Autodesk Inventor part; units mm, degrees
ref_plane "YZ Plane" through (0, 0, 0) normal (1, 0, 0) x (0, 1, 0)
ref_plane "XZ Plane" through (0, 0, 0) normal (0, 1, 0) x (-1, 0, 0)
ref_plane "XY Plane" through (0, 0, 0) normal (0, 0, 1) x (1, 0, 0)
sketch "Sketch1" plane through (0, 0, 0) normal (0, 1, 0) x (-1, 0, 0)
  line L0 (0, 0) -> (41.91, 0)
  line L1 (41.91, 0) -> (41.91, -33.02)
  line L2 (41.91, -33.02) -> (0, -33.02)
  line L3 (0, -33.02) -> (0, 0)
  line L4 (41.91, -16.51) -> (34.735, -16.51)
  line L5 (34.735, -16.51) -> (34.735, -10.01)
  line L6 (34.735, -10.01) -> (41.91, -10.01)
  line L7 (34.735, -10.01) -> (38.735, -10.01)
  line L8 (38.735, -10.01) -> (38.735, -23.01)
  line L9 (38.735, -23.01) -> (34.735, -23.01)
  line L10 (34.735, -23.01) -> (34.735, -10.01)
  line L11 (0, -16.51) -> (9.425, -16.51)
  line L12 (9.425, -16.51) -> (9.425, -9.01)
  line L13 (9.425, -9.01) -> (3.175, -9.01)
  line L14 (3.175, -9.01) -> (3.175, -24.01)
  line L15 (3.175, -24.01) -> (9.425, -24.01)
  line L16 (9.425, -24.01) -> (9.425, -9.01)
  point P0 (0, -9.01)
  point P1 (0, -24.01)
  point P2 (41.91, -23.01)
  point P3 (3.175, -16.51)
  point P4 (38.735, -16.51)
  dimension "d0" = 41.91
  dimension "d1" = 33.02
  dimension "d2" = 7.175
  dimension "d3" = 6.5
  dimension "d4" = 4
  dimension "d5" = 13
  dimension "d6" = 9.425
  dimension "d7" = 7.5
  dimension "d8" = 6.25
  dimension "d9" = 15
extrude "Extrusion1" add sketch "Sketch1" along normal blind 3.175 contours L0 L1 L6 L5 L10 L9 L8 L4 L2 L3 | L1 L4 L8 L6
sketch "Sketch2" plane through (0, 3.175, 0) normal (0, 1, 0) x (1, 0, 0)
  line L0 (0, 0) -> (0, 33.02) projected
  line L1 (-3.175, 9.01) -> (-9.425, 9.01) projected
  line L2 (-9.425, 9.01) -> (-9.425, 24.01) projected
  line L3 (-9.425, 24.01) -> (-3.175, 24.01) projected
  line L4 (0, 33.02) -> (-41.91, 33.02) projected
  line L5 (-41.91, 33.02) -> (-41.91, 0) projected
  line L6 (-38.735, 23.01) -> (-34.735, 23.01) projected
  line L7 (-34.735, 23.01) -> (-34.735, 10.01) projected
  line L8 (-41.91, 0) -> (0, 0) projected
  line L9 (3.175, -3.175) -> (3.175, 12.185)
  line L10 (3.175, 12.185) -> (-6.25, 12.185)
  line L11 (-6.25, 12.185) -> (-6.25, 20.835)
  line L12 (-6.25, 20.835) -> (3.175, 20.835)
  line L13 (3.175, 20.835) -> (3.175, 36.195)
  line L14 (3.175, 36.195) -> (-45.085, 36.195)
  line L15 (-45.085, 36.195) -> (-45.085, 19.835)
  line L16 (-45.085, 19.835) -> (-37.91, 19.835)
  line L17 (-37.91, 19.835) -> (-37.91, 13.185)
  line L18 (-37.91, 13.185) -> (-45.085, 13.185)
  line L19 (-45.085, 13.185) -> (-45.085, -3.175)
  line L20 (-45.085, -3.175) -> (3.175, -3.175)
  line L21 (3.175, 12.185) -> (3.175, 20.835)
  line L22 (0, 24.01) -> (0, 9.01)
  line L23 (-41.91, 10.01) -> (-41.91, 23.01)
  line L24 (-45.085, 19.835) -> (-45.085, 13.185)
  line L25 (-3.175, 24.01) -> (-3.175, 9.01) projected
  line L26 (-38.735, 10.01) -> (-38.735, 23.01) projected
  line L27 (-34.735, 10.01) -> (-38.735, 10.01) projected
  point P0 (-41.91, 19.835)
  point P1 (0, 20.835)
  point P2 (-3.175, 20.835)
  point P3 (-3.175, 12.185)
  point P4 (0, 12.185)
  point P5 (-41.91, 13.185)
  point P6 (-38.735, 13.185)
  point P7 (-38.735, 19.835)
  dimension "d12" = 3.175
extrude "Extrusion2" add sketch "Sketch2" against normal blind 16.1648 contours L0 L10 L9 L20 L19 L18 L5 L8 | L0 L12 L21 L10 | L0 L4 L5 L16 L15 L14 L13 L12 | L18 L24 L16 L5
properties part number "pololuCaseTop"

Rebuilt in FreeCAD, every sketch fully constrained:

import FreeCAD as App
import Part
import Sketcher

V = App.Vector
Q = App.Units.Quantity

doc = App.newDocument("Part")
body = doc.addObject("PartDesign::Body", "Body")

# Sketch on XZ plane
sketch1 = doc.addObject("Sketcher::SketchObject", "Sketch")
body.addObject(sketch1)
sketch1.AttachmentSupport = (doc.XZ_Plane, [""])
sketch1.MapMode = "FlatFace"
sketch1.addGeometry(Part.LineSegment(V(-41.9, 0, 0), V(0, 0, 0)), False)
sketch1.addGeometry(Part.LineSegment(V(0, 0, 0), V(0, -16.5, 0)), False)
sketch1.addGeometry(Part.LineSegment(V(0, -16.5, 0), V(0, -33, 0)), False)
sketch1.addGeometry(Part.LineSegment(V(0, -33, 0), V(-41.9, -33, 0)), False)
sketch1.addGeometry(Part.LineSegment(V(-41.9, -33, 0), V(-41.9, 0, 0)), False)
sketch1.addGeometry(Part.LineSegment(V(-34.7, -10, 0), V(-38.7, -10, 0)), False)
sketch1.addGeometry(Part.LineSegment(V(-38.7, -10, 0), V(-38.7, -23, 0)), False)
sketch1.addGeometry(Part.LineSegment(V(-38.7, -23, 0), V(-34.7, -23, 0)), False)
sketch1.addGeometry(Part.LineSegment(V(-34.7, -23, 0), V(-34.7, -10, 0)), False)
sketch1.addGeometry(Part.LineSegment(V(-3.2, -24, 0), V(-3.2, -16.5, 0)), False)
sketch1.addGeometry(Part.LineSegment(V(-3.2, -16.5, 0), V(-3.2, -9, 0)), False)
sketch1.addGeometry(Part.LineSegment(V(-3.2, -9, 0), V(-9.4, -9, 0)), False)
sketch1.addGeometry(Part.LineSegment(V(-9.4, -9, 0), V(-9.4, -24, 0)), False)
sketch1.addGeometry(Part.LineSegment(V(-9.4, -24, 0), V(-3.2, -24, 0)), False)
sketch1.addConstraint(Sketcher.Constraint("Coincident", 0, 2, 1, 1))
sketch1.addConstraint(Sketcher.Constraint("Coincident", 1, 2, 2, 1))
sketch1.addConstraint(Sketcher.Constraint("Coincident", 2, 2, 3, 1))
sketch1.addConstraint(Sketcher.Constraint("Coincident", 3, 2, 4, 1))
sketch1.addConstraint(Sketcher.Constraint("Coincident", 4, 2, 0, 1))
sketch1.addConstraint(Sketcher.Constraint("Coincident", 5, 2, 6, 1))
sketch1.addConstraint(Sketcher.Constraint("Coincident", 6, 2, 7, 1))
sketch1.addConstraint(Sketcher.Constraint("Coincident", 7, 2, 8, 1))
sketch1.addConstraint(Sketcher.Constraint("Coincident", 8, 2, 5, 1))
sketch1.addConstraint(Sketcher.Constraint("Coincident", 9, 2, 10, 1))
sketch1.addConstraint(Sketcher.Constraint("Coincident", 10, 2, 11, 1))
sketch1.addConstraint(Sketcher.Constraint("Coincident", 11, 2, 12, 1))
sketch1.addConstraint(Sketcher.Constraint("Coincident", 12, 2, 13, 1))
sketch1.addConstraint(Sketcher.Constraint("Coincident", 13, 2, 9, 1))
sketch1.addConstraint(Sketcher.Constraint("Horizontal", 0))
sketch1.addConstraint(Sketcher.Constraint("Vertical", 1))
sketch1.addConstraint(Sketcher.Constraint("Vertical", 2))
sketch1.addConstraint(Sketcher.Constraint("Horizontal", 3))
sketch1.addConstraint(Sketcher.Constraint("Vertical", 4))
sketch1.addConstraint(Sketcher.Constraint("Horizontal", 5))
sketch1.addConstraint(Sketcher.Constraint("Vertical", 6))
sketch1.addConstraint(Sketcher.Constraint("Horizontal", 7))
sketch1.addConstraint(Sketcher.Constraint("Vertical", 8))
sketch1.addConstraint(Sketcher.Constraint("Vertical", 9))
sketch1.addConstraint(Sketcher.Constraint("Vertical", 10))
sketch1.addConstraint(Sketcher.Constraint("Horizontal", 11))
sketch1.addConstraint(Sketcher.Constraint("Vertical", 12))
sketch1.addConstraint(Sketcher.Constraint("Horizontal", 13))
sketch1.addConstraint(Sketcher.Constraint("Coincident", 0, 2, -1, 1))
sketch1.addConstraint(Sketcher.Constraint("Horizontal", 1, 2, 9, 2))
sketch1.addConstraint(Sketcher.Constraint("Equal", 1, 2))
sketch1.addConstraint(Sketcher.Constraint("Equal", 9, 10))
sketch1.addConstraint(Sketcher.Constraint("DistanceY", 4, 1, 4, 2, Q("1.3 in")))
sketch1.addConstraint(Sketcher.Constraint("DistanceX", 0, 1, 0, 2, Q("1.65 in")))
sketch1.addConstraint(Sketcher.Constraint("DistanceY", 6, 2, 6, 1, Q("0.5118 in")))
sketch1.addConstraint(Sketcher.Constraint("DistanceX", 5, 2, 5, 1, Q("4 mm")))
sketch1.addConstraint(Sketcher.Constraint("DistanceX", 11, 2, 11, 1, Q("6.25 mm")))
sketch1.addConstraint(Sketcher.Constraint("DistanceY", 9, 1, 9, 2, Q("7.5 mm")))
sketch1.addConstraint(Sketcher.Constraint("DistanceY", 1, 2, 5, 2, Q("0.2559 in")))
sketch1.addConstraint(Sketcher.Constraint("DistanceX", 11, 2, -1, 1, Q("9.425 mm")))
sketch1.addConstraint(Sketcher.Constraint("DistanceX", 3, 2, 7, 2, Q("7.175 mm")))
pad1 = doc.addObject("PartDesign::Pad", "Pad")
body.addObject(pad1)
pad1.Profile = sketch1
pad1.Length = Q("0.125 in")
pad1.Reversed = True

# Sketch on XZ plane
sketch2 = doc.addObject("Sketcher::SketchObject", "Sketch001")
body.addObject(sketch2)
sketch2.AttachmentSupport = (doc.XZ_Plane, [""])
sketch2.MapMode = "FlatFace"
sketch2.AttachmentOffset = App.Placement(V(0, 0, -0.125 * 25.4), App.Rotation())
sketch2.addGeometry(Part.LineSegment(V(3, 3, 0), V(3, -36, 0)), False)
sketch2.addGeometry(Part.LineSegment(V(3, -36, 0), V(-45, -36, 0)), False)
sketch2.addGeometry(Part.LineSegment(V(-45, -36, 0), V(-45, 3, 0)), False)
sketch2.addGeometry(Part.LineSegment(V(-45, 3, 0), V(3, 3, 0)), False)
sketch2.addGeometry(Part.LineSegment(V(0, 0, 0), V(-42, 0, 0)), False)
sketch2.addGeometry(Part.LineSegment(V(-42, 0, 0), V(-42, -33, 0)), False)
sketch2.addGeometry(Part.LineSegment(V(-42, -33, 0), V(0, -33, 0)), False)
sketch2.addGeometry(Part.LineSegment(V(0, -33, 0), V(0, 0, 0)), False)
sketch2.addConstraint(Sketcher.Constraint("Coincident", 0, 2, 1, 1))
sketch2.addConstraint(Sketcher.Constraint("Coincident", 1, 2, 2, 1))
sketch2.addConstraint(Sketcher.Constraint("Coincident", 2, 2, 3, 1))
sketch2.addConstraint(Sketcher.Constraint("Coincident", 3, 2, 0, 1))
sketch2.addConstraint(Sketcher.Constraint("Coincident", 4, 2, 5, 1))
sketch2.addConstraint(Sketcher.Constraint("Coincident", 5, 2, 6, 1))
sketch2.addConstraint(Sketcher.Constraint("Coincident", 6, 2, 7, 1))
sketch2.addConstraint(Sketcher.Constraint("Coincident", 7, 2, 4, 1))
sketch2.addConstraint(Sketcher.Constraint("Vertical", 0))
sketch2.addConstraint(Sketcher.Constraint("Horizontal", 1))
sketch2.addConstraint(Sketcher.Constraint("Vertical", 2))
sketch2.addConstraint(Sketcher.Constraint("Horizontal", 3))
sketch2.addConstraint(Sketcher.Constraint("Horizontal", 4))
sketch2.addConstraint(Sketcher.Constraint("Vertical", 5))
sketch2.addConstraint(Sketcher.Constraint("Horizontal", 6))
sketch2.addConstraint(Sketcher.Constraint("Vertical", 7))
sketch2.addConstraint(Sketcher.Constraint("Coincident", 7, 2, -1, 1))
sketch2.addConstraint(Sketcher.Constraint("DistanceX", 1, 2, 1, 1, Q("1.9 in")))
sketch2.addConstraint(Sketcher.Constraint("DistanceY", 5, 2, 5, 1, Q("1.3 in")))
sketch2.addConstraint(Sketcher.Constraint("DistanceX", -1, 1, 0, 2, Q("0.125 in")))
sketch2.addConstraint(Sketcher.Constraint("DistanceY", -1, 1, 2, 2, Q("0.125 in")))
sketch2.addConstraint(Sketcher.Constraint("DistanceX", 2, 2, 4, 2, Q("0.125 in")))
sketch2.addConstraint(Sketcher.Constraint("DistanceY", 1, 2, 5, 2, Q("0.125 in")))
pad2 = doc.addObject("PartDesign::Pad", "Pad001")
body.addObject(pad2)
pad2.Profile = sketch2
pad2.Length = Q("0.6364094 in")

doc.recompute()
